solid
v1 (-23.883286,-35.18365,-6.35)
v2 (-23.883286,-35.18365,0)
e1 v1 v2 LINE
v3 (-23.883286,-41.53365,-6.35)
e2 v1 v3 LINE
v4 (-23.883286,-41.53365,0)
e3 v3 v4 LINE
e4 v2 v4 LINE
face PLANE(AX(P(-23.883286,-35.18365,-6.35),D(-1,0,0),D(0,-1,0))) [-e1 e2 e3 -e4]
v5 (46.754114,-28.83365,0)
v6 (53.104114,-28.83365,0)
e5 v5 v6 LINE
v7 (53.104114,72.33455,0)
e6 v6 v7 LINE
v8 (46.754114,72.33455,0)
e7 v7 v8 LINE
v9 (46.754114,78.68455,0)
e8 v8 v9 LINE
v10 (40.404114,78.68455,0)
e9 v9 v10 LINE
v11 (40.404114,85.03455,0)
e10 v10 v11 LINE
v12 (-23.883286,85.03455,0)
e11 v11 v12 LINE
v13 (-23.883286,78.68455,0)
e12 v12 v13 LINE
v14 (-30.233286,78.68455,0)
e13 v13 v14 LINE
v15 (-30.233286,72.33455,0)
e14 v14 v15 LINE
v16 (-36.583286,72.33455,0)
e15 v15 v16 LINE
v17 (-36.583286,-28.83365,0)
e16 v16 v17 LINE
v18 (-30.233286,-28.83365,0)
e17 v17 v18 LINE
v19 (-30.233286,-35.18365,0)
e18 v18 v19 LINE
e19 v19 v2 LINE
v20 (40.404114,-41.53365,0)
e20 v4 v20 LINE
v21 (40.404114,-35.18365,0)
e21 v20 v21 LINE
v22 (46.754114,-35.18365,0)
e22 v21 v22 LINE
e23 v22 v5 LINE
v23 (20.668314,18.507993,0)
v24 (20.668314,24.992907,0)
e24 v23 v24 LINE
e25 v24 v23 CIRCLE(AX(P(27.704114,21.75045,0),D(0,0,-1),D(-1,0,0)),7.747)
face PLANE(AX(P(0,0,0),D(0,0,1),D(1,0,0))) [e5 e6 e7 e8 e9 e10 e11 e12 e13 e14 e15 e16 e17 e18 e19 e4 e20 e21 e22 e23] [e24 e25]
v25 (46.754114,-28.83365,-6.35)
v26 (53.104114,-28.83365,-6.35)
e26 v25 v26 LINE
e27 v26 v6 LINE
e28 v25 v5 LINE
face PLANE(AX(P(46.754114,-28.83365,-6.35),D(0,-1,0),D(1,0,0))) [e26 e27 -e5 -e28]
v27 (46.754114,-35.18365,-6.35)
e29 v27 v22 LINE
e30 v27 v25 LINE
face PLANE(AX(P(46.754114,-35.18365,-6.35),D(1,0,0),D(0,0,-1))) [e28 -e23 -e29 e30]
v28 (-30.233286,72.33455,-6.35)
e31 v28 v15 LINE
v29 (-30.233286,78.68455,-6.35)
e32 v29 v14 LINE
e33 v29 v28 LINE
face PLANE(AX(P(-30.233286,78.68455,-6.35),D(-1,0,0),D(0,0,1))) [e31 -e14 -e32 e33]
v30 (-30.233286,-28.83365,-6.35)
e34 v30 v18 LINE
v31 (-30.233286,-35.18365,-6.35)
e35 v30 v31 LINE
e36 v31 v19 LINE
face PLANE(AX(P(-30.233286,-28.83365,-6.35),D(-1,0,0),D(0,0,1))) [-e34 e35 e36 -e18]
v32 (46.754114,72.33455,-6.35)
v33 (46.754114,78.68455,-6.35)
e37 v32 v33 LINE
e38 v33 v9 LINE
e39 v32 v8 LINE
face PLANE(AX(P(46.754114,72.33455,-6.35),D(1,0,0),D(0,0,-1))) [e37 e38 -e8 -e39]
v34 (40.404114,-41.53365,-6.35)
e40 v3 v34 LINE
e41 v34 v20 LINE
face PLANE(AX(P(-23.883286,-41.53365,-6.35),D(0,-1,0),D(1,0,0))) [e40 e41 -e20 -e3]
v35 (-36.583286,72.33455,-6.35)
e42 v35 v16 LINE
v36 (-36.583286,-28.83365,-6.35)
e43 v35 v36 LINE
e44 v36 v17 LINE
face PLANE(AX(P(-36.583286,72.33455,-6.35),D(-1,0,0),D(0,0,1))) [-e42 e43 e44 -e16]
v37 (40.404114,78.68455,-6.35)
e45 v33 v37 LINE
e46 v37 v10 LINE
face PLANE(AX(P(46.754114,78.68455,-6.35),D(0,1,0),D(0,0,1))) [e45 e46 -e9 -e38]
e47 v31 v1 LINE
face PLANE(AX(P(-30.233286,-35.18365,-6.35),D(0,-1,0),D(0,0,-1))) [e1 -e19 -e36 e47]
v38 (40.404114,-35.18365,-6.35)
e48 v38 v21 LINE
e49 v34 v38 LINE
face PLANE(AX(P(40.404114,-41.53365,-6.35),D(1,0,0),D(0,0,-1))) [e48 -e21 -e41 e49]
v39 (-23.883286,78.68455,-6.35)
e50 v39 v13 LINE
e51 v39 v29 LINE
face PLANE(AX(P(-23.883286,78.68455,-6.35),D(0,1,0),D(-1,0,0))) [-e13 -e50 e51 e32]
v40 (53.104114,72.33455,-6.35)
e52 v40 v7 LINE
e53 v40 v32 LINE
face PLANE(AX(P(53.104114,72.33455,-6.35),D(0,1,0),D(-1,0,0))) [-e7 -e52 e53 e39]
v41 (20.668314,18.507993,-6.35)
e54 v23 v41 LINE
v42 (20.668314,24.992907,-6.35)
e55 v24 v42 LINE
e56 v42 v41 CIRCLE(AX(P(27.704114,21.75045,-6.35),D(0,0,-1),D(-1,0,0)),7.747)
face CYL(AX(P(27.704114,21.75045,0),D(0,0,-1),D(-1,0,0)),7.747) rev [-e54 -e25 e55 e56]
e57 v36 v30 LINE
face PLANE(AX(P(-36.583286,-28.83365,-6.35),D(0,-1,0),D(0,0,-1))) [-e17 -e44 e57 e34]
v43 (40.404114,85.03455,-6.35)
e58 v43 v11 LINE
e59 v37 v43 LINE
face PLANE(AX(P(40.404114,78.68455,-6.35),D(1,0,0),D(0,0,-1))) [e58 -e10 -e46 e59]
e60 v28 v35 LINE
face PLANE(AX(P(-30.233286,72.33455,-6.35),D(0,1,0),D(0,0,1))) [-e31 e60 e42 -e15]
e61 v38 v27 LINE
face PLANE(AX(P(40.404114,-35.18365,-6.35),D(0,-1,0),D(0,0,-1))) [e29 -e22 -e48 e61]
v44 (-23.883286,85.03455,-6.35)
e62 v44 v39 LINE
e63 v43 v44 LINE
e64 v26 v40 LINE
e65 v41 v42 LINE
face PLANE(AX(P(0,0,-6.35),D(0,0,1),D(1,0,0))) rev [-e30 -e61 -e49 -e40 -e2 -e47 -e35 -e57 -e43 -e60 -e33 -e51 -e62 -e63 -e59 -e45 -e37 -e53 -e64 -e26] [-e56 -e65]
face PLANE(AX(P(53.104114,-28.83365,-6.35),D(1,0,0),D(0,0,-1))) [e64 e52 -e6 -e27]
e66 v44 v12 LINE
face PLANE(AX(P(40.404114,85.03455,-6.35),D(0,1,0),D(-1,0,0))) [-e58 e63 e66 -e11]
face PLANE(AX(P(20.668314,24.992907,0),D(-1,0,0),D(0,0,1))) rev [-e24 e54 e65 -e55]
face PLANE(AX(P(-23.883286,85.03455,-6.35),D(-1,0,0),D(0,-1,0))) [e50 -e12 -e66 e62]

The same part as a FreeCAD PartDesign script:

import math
import FreeCAD as App
import Part
import Sketcher
from FreeCAD import Vector
Q = App.Units.Quantity

doc = App.newDocument("Part")
body = doc.addObject("PartDesign::Body", "Body")

# Sketch on XY plane
sketch1 = body.newObject("Sketcher::SketchObject", "Sketch")
sketch1.AttachmentSupport = (doc.getObject("XY_Plane"), [""])
sketch1.MapMode = "FlatFace"
sketch1.addGeometry([
    Part.LineSegment(Vector(-30, -35, 0), Vector(-24, -35, 0)),  # 0
    Part.LineSegment(Vector(-24, -35, 0), Vector(-24, -42, 0)),  # 1
    Part.LineSegment(Vector(-24, -42, 0), Vector(40, -42, 0)),  # 2
    Part.LineSegment(Vector(40, -42, 0), Vector(40, -35, 0)),  # 3
    Part.LineSegment(Vector(40, -35, 0), Vector(47, -35, 0)),  # 4
    Part.LineSegment(Vector(47, -35, 0), Vector(47, -29, 0)),  # 5
    Part.LineSegment(Vector(47, -29, 0), Vector(53, -29, 0)),  # 6
    Part.LineSegment(Vector(53, -29, 0), Vector(53, 72, 0)),  # 7
    Part.LineSegment(Vector(53, 72, 0), Vector(47, 72, 0)),  # 8
    Part.LineSegment(Vector(47, 72, 0), Vector(47, 79, 0)),  # 9
    Part.LineSegment(Vector(47, 79, 0), Vector(40, 79, 0)),  # 10
    Part.LineSegment(Vector(40, 79, 0), Vector(40, 85, 0)),  # 11
    Part.LineSegment(Vector(40, 85, 0), Vector(-24, 85, 0)),  # 12
    Part.LineSegment(Vector(-24, 85, 0), Vector(-24, 79, 0)),  # 13
    Part.LineSegment(Vector(-24, 79, 0), Vector(-30, 79, 0)),  # 14
    Part.LineSegment(Vector(-30, 79, 0), Vector(-30, 72, 0)),  # 15
    Part.LineSegment(Vector(-30, 72, 0), Vector(-37, 72, 0)),  # 16
    Part.LineSegment(Vector(-37, 72, 0), Vector(-37, -29, 0)),  # 17
    Part.LineSegment(Vector(-37, -29, 0), Vector(-30, -29, 0)),  # 18
    Part.LineSegment(Vector(-30, -29, 0), Vector(-30, -35, 0)),  # 19
], False)
sketch1.addConstraint([
    Sketcher.Constraint("Coincident", 0, 2, 1, 1),
    Sketcher.Constraint("Coincident", 1, 2, 2, 1),
    Sketcher.Constraint("Coincident", 2, 2, 3, 1),
    Sketcher.Constraint("Coincident", 3, 2, 4, 1),
    Sketcher.Constraint("Coincident", 4, 2, 5, 1),
    Sketcher.Constraint("Coincident", 5, 2, 6, 1),
    Sketcher.Constraint("Coincident", 6, 2, 7, 1),
    Sketcher.Constraint("Coincident", 7, 2, 8, 1),
    Sketcher.Constraint("Coincident", 8, 2, 9, 1),
    Sketcher.Constraint("Coincident", 9, 2, 10, 1),
    Sketcher.Constraint("Coincident", 10, 2, 11, 1),
    Sketcher.Constraint("Coincident", 11, 2, 12, 1),
    Sketcher.Constraint("Coincident", 12, 2, 13, 1),
    Sketcher.Constraint("Coincident", 13, 2, 14, 1),
    Sketcher.Constraint("Coincident", 14, 2, 15, 1),
    Sketcher.Constraint("Coincident", 15, 2, 16, 1),
    Sketcher.Constraint("Coincident", 16, 2, 17, 1),
    Sketcher.Constraint("Coincident", 17, 2, 18, 1),
    Sketcher.Constraint("Coincident", 18, 2, 19, 1),
    Sketcher.Constraint("Coincident", 19, 2, 0, 1),
    Sketcher.Constraint("Horizontal", 0),
    Sketcher.Constraint("Vertical", 1),
    Sketcher.Constraint("Horizontal", 2),
    Sketcher.Constraint("Vertical", 3),
    Sketcher.Constraint("Horizontal", 4),
    Sketcher.Constraint("Vertical", 5),
    Sketcher.Constraint("Horizontal", 6),
    Sketcher.Constraint("Vertical", 7),
    Sketcher.Constraint("Horizontal", 8),
    Sketcher.Constraint("Vertical", 9),
    Sketcher.Constraint("Horizontal", 10),
    Sketcher.Constraint("Vertical", 11),
    Sketcher.Constraint("Horizontal", 12),
    Sketcher.Constraint("Vertical", 13),
    Sketcher.Constraint("Horizontal", 14),
    Sketcher.Constraint("Vertical", 15),
    Sketcher.Constraint("Horizontal", 16),
    Sketcher.Constraint("Vertical", 17),
    Sketcher.Constraint("Horizontal", 18),
    Sketcher.Constraint("Vertical", 19),
    Sketcher.Constraint("Horizontal", 0, 2, 3, 2),
    Sketcher.Constraint("Horizontal", 10, 2, 13, 2),
    Sketcher.Constraint("Horizontal", 8, 2, 15, 2),
    Sketcher.Constraint("Horizontal", 6, 2, 17, 2),
    Sketcher.Constraint("Vertical", 5, 2, 8, 2),
    Sketcher.Constraint("Vertical", 3, 2, 10, 2),
    Sketcher.Constraint("Vertical", 1, 2, 12, 2),
    Sketcher.Constraint("Vertical", 15, 2, 18, 2),
    Sketcher.Constraint("Equal", 0, 4),
    Sketcher.Constraint("Equal", 4, 6),
    Sketcher.Constraint("Equal", 14, 16),
    Sketcher.Constraint("Equal", 18, 1),
    Sketcher.Constraint("Equal", 3, 5),
    Sketcher.Constraint("Equal", 5, 9),
    Sketcher.Constraint("Equal", 9, 11),
    Sketcher.Constraint("DistanceX", 0, 1, 0, 2, Q("0.25 in")),
    Sketcher.Constraint("DistanceX", 2, 1, 2, 2, Q("2.531 in")),
    Sketcher.Constraint("DistanceY", 7, 1, 7, 2, Q("3.983 in")),
    Sketcher.Constraint("DistanceY", 0, 2, -1, 1, 35.18365),
    Sketcher.Constraint("DistanceX", 0, 2, -1, 1, 23.883286),
])
pad1 = body.newObject("PartDesign::Pad", "Pad")
pad1.Profile = sketch1
pad1.Length = Q("0.25 in")
pad1.Reversed = True

# Sketch on XY plane
sketch2 = body.newObject("Sketcher::SketchObject", "Sketch001")
sketch2.AttachmentSupport = (doc.getObject("XY_Plane"), [""])
sketch2.MapMode = "FlatFace"
sketch2.AttachmentOffset = App.Placement(Vector(0, 0, -0.25 * 25.4), App.Rotation())
sketch2.addGeometry([
    Part.LineSegment(Vector(21, 19, 0), Vector(21, 25, 0)),
    Part.ArcOfCircle(Part.Circle(Vector(28, 22, 0), Vector(0, 0, 1), 8), math.radians(-155), math.radians(155)),
], False)
sketch2.addConstraint([
    Sketcher.Constraint("Coincident", 0, 1, 1, 1),
    Sketcher.Constraint("Coincident", 1, 2, 0, 2),
    Sketcher.Constraint("Vertical", 0),
    Sketcher.Constraint("Radius", 1, Q("0.305 in")),
    Sketcher.Constraint("DistanceX", 0, 1, 1, 3, Q("0.277 in")),
    Sketcher.Constraint("DistanceY", -1, 1, 1, 3, 21.75045),
    Sketcher.Constraint("DistanceX", -1, 1, 1, 3, 27.704114),
])
pocket1 = body.newObject("PartDesign::Pocket", "Pocket")
pocket1.Profile = sketch2
pocket1.Type = "ThroughAll"
pocket1.Reversed = True

doc.recompute()
